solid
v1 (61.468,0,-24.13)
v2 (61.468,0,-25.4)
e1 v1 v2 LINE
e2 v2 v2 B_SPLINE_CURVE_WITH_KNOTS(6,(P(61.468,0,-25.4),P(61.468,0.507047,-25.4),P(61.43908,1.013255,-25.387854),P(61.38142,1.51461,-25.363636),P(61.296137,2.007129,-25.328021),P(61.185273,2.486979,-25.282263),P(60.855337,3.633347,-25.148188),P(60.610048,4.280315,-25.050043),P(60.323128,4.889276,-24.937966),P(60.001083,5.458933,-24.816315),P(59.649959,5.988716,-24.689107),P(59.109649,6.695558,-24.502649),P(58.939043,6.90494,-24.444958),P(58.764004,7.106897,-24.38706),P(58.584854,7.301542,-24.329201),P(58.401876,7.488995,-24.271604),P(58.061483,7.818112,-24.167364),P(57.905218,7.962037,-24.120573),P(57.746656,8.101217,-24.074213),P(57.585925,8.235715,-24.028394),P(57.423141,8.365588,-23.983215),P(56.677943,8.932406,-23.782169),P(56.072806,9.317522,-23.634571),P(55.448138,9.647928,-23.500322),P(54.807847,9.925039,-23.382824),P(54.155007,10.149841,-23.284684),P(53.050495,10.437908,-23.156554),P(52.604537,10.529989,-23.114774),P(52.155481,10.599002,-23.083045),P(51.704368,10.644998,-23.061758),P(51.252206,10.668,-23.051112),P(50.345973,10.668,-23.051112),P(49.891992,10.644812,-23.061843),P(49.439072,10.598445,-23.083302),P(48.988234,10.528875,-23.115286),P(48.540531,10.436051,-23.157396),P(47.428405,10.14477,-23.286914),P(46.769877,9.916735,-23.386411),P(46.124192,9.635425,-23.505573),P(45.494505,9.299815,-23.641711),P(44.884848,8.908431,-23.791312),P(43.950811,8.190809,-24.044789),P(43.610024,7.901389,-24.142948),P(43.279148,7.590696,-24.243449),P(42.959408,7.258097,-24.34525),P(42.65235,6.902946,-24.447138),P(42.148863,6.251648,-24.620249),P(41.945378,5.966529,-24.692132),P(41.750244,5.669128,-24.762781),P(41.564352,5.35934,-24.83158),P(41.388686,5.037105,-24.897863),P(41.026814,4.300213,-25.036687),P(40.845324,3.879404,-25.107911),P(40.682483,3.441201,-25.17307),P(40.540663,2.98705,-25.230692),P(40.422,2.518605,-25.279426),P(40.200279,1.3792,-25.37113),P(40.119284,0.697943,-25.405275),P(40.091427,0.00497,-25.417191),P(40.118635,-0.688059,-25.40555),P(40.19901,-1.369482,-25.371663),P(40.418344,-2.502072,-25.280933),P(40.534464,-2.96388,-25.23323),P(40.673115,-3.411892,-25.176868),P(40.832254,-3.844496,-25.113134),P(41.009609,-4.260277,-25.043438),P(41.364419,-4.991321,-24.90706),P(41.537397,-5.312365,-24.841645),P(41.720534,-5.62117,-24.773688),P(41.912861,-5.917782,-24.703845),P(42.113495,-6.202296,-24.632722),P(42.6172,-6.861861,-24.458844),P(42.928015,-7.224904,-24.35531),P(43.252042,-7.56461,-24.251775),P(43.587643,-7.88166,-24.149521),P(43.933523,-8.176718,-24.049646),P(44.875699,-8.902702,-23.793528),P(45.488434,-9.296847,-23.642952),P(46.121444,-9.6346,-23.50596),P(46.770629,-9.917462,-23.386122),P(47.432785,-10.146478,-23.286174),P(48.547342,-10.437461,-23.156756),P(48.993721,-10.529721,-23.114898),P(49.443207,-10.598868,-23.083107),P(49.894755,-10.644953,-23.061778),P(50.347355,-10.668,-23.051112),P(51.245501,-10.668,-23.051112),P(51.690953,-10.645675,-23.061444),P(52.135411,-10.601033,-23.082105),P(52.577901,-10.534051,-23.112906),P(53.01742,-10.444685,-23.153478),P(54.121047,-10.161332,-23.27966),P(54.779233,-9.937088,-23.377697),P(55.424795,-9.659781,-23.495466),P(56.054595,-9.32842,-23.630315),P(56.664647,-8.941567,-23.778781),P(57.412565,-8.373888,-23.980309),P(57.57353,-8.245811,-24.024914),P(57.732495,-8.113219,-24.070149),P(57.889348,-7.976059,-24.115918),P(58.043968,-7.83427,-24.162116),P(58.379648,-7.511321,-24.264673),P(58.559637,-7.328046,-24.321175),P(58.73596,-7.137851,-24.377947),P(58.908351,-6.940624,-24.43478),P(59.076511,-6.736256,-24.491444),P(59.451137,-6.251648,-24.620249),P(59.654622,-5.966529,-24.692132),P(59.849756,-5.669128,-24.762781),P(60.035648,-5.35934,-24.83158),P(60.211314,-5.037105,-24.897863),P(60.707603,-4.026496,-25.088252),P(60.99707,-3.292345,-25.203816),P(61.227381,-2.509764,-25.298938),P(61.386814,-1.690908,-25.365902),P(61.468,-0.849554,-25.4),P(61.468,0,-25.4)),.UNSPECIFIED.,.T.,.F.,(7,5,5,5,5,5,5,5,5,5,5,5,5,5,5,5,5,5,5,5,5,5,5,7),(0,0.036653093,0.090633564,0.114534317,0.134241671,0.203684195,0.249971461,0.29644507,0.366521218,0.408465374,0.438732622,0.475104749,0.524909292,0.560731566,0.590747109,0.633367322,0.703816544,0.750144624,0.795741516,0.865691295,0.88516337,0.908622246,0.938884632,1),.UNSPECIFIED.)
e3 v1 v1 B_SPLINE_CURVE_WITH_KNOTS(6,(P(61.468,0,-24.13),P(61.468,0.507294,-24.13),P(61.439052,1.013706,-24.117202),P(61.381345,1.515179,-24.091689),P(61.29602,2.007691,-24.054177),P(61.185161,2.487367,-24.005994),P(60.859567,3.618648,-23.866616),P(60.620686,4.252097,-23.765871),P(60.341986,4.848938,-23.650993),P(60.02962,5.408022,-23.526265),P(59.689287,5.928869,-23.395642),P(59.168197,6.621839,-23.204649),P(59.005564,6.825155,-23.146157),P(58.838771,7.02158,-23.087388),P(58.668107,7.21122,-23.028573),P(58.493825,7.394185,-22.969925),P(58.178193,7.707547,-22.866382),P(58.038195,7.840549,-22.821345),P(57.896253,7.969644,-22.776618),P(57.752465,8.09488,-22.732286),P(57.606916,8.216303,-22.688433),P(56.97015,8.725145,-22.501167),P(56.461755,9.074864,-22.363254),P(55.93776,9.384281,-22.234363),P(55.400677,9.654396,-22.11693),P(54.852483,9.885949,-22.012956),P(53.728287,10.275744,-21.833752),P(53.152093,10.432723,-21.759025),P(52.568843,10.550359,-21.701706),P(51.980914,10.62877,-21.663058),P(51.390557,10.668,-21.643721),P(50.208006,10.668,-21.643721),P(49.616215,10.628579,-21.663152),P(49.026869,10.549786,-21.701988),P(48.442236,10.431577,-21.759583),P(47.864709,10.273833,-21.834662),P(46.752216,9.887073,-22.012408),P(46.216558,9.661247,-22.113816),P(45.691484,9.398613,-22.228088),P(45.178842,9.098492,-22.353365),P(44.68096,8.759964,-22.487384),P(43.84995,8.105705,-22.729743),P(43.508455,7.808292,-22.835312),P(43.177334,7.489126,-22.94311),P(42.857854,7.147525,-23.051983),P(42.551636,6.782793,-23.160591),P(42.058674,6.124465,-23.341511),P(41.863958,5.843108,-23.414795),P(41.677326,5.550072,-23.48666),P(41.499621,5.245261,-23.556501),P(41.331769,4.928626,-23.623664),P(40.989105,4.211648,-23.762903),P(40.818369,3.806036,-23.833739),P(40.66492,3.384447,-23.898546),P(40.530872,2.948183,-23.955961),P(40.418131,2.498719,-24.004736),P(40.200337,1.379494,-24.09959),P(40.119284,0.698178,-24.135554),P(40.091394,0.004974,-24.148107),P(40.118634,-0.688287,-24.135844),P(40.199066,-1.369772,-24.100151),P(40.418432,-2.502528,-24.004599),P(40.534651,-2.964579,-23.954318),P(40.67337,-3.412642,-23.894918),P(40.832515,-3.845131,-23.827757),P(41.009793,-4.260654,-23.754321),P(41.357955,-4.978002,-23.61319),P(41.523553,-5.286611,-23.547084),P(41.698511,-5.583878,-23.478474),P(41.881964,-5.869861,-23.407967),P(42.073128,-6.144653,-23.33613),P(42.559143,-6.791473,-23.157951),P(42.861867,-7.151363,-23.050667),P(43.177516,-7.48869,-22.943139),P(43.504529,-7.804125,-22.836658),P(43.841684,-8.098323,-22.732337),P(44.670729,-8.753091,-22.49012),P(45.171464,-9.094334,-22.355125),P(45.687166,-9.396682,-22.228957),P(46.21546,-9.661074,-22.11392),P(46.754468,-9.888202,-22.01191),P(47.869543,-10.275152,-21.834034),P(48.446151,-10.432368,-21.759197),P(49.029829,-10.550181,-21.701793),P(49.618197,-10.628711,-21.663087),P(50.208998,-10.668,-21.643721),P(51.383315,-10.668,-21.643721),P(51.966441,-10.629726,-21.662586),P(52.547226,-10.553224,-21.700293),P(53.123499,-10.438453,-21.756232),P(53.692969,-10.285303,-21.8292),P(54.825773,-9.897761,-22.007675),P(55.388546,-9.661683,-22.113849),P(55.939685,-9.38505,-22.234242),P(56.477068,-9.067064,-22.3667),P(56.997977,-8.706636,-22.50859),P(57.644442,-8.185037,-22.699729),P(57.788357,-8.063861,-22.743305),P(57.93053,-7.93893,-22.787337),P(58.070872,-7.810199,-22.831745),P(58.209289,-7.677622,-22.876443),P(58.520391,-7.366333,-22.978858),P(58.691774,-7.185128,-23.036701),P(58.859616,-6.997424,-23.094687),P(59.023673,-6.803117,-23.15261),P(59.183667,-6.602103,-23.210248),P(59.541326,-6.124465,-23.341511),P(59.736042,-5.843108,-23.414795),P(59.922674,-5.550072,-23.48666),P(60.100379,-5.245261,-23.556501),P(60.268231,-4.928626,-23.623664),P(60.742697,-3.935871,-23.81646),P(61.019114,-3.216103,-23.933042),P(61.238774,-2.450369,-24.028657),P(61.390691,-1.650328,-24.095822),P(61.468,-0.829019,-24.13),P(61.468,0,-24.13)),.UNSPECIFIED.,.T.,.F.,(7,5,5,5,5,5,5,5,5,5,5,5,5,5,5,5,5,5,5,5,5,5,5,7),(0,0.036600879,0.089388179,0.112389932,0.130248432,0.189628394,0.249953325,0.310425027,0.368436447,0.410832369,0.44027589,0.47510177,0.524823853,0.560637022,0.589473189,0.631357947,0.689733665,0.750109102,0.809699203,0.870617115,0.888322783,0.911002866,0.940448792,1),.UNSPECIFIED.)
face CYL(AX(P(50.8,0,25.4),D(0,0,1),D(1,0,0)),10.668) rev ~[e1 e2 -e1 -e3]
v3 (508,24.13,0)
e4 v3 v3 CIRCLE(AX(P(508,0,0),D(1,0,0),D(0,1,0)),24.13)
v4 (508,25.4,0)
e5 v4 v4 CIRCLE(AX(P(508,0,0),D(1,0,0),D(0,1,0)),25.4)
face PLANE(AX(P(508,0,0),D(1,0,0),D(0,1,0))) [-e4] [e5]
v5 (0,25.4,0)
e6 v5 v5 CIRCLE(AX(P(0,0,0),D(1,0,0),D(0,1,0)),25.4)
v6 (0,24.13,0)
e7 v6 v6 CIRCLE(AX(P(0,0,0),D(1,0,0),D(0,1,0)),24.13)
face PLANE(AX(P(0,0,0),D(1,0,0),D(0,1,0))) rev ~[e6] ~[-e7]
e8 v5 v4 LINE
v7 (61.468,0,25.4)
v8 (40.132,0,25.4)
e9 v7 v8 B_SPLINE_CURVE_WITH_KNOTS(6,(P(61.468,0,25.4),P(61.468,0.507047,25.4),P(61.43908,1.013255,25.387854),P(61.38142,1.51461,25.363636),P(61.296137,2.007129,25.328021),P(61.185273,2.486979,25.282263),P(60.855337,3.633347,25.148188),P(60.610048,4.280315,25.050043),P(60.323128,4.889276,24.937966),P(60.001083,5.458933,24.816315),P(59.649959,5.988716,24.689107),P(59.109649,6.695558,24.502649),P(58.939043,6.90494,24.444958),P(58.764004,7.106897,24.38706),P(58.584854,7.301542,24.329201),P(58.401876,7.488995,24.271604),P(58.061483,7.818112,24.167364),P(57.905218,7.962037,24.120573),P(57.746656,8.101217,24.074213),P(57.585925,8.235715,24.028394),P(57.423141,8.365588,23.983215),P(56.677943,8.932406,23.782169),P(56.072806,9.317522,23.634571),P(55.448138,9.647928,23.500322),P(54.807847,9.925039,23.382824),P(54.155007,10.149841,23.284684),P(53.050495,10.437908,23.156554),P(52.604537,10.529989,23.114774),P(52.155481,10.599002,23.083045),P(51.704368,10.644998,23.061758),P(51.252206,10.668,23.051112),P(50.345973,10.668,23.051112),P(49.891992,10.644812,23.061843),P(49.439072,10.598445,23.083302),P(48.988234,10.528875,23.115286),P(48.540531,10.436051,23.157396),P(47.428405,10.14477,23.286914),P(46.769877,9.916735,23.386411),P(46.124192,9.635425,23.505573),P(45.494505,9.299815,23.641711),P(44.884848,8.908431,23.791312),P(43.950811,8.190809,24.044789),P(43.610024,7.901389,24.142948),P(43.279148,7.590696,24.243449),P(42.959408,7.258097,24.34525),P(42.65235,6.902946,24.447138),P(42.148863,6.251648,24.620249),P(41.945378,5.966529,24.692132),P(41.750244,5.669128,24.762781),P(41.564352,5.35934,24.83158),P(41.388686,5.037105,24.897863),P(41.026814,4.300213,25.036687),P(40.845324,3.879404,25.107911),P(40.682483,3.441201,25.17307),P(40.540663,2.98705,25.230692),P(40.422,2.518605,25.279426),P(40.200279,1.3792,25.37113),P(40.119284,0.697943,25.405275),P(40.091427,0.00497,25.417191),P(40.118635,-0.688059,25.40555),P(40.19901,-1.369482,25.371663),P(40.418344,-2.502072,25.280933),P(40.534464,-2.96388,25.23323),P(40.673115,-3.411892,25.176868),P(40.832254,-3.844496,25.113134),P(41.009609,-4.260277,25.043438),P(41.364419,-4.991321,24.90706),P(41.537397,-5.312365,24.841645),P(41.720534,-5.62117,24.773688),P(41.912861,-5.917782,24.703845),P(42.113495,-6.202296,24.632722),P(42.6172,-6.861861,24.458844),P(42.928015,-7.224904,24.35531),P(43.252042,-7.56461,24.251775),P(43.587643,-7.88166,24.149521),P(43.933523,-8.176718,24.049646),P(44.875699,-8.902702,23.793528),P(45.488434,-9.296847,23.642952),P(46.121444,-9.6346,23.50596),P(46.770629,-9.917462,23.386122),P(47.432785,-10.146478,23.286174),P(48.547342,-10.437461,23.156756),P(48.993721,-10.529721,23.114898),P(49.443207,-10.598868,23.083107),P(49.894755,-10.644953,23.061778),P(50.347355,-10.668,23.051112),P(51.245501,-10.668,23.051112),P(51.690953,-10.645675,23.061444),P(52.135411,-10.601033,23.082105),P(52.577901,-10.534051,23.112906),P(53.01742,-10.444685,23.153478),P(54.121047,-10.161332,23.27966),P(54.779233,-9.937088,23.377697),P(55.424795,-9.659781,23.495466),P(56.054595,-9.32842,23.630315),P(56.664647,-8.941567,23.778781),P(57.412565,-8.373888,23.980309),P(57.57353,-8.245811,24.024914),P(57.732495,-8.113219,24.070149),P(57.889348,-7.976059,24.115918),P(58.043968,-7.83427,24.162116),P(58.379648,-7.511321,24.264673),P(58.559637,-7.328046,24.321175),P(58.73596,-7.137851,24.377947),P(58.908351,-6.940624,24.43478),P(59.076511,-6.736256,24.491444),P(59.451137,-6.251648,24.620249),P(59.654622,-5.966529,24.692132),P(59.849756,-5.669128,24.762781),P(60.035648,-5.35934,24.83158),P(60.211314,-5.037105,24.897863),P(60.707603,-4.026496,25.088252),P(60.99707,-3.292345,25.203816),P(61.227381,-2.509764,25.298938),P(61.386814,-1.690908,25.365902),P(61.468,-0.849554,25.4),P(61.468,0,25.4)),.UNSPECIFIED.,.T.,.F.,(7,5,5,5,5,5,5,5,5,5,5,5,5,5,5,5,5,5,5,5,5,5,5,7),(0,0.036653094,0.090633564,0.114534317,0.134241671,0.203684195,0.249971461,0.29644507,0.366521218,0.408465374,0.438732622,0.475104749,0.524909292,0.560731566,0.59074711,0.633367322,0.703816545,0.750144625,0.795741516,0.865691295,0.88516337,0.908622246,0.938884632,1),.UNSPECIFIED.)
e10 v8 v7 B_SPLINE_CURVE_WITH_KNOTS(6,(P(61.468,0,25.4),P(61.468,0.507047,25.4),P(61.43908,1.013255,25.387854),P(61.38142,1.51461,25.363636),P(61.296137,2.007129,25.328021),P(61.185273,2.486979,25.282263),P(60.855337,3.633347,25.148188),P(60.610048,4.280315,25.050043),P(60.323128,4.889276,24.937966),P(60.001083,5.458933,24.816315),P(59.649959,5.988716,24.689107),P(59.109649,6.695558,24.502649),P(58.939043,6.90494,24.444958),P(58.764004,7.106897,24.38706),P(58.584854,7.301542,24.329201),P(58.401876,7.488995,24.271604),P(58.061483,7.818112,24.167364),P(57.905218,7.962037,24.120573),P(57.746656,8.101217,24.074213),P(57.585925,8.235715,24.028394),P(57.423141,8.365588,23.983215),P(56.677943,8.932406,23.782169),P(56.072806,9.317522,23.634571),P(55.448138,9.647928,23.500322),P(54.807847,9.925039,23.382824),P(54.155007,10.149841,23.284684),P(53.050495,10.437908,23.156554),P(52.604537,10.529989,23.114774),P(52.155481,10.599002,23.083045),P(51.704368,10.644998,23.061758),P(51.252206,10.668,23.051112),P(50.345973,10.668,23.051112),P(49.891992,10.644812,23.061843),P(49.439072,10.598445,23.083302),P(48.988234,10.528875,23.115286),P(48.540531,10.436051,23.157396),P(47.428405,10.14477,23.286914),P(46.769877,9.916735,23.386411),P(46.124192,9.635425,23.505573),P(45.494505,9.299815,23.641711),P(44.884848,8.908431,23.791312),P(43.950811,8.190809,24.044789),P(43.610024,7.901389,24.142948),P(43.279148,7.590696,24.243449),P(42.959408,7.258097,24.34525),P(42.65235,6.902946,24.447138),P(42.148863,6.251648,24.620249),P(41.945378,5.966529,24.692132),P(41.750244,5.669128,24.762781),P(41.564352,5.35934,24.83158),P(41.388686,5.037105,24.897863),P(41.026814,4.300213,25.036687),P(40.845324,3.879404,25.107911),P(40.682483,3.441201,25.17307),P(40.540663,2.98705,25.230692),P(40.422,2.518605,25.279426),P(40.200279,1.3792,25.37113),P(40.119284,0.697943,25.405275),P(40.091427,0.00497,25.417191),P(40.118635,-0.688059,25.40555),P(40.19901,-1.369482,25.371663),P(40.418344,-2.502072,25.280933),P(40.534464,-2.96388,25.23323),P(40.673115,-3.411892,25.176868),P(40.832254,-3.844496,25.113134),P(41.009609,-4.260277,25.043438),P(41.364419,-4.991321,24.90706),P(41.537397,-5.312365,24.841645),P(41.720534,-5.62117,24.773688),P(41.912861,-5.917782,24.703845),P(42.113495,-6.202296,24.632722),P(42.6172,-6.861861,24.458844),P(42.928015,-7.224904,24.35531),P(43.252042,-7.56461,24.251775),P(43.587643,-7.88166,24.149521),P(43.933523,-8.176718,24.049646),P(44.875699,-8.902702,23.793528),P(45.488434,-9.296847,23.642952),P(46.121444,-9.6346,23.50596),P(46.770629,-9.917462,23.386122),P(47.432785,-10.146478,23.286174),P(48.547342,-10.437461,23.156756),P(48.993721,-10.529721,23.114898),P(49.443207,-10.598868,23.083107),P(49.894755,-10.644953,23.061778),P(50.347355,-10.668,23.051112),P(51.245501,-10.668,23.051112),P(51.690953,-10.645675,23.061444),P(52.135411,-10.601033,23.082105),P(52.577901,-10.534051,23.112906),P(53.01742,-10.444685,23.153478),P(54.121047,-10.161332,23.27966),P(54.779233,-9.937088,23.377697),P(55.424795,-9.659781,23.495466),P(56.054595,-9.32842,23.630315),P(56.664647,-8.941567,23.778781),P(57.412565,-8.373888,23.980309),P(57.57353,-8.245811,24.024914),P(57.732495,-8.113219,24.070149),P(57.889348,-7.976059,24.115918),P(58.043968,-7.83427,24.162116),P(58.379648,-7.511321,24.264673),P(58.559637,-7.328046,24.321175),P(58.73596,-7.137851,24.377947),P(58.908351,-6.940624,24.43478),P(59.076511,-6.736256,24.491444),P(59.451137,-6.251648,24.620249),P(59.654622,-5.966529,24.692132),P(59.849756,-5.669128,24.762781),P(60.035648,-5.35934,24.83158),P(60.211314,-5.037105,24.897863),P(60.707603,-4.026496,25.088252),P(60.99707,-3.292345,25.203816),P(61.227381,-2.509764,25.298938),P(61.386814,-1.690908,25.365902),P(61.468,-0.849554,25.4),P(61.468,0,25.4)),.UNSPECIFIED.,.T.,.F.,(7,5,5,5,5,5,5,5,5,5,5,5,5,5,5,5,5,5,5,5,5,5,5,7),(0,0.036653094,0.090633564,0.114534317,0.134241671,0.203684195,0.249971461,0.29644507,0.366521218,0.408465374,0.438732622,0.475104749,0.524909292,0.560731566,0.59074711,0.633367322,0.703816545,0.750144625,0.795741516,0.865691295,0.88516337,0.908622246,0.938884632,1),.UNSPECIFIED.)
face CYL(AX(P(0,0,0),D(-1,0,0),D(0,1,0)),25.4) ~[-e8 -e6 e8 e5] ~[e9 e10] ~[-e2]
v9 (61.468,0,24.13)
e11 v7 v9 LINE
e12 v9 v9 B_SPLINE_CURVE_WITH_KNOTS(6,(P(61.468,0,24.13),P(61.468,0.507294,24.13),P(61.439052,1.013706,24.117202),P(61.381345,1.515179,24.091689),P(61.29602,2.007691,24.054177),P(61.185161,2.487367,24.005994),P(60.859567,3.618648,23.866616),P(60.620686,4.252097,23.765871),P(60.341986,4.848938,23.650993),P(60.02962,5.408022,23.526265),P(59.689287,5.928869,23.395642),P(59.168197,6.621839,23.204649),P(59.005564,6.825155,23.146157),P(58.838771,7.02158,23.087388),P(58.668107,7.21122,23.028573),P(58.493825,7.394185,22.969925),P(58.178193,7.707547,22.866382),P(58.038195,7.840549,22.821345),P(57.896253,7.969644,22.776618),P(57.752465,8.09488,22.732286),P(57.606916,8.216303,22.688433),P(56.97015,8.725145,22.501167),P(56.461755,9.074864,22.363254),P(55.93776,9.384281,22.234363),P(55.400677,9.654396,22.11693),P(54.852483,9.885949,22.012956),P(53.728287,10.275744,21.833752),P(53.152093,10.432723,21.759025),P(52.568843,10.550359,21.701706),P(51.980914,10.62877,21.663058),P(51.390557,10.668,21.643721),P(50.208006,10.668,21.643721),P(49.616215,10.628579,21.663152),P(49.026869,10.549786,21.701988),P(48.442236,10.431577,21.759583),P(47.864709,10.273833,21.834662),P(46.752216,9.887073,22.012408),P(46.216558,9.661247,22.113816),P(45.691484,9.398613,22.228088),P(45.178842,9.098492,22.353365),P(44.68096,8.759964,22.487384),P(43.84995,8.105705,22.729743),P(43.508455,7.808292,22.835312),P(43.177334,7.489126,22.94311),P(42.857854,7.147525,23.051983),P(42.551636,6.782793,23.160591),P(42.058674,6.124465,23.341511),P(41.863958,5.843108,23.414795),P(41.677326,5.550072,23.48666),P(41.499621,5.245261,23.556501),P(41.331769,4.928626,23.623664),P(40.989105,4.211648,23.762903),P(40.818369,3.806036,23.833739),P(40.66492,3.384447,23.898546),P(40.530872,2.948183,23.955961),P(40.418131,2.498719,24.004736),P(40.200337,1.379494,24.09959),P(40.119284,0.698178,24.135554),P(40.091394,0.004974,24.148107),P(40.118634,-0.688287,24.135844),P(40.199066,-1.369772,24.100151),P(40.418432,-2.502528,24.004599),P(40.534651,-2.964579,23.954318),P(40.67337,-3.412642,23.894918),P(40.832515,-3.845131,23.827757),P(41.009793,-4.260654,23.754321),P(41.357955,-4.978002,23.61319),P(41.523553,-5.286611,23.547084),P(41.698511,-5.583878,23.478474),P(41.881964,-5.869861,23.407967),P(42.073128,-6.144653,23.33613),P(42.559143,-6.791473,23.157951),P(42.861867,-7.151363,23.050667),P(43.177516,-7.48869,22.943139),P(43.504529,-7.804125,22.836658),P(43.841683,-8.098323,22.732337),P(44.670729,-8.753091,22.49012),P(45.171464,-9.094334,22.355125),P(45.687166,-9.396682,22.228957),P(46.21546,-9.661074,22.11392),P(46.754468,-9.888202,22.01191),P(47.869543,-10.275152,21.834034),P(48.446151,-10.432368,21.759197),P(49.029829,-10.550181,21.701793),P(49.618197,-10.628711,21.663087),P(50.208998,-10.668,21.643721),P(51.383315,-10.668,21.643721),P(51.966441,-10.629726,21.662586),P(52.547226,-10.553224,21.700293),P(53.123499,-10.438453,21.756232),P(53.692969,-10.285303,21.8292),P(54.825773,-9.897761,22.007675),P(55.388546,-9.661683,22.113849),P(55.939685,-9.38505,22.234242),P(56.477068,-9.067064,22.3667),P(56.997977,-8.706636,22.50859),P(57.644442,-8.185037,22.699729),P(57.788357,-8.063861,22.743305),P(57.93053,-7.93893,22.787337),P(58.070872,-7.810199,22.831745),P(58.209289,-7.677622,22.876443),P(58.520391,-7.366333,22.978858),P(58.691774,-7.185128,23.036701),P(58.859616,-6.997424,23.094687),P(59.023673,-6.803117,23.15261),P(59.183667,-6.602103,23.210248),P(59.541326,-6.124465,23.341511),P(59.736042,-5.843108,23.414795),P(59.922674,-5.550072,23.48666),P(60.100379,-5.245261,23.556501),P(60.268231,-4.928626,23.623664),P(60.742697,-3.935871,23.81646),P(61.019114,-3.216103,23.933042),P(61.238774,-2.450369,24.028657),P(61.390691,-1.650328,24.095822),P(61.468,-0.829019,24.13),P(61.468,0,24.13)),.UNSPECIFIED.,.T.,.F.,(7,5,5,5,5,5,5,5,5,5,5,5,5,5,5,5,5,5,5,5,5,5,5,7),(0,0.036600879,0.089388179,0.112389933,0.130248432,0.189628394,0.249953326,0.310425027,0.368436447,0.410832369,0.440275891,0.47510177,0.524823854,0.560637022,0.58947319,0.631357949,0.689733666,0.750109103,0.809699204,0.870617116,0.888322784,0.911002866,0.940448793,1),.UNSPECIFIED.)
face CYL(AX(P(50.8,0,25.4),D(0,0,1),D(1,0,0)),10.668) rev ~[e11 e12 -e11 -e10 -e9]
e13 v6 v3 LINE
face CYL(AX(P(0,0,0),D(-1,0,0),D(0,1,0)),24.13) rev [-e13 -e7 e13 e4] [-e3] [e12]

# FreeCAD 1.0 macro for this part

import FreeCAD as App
import Part
import Sketcher
Q = App.Units.Quantity

doc = App.newDocument("Part")
params = doc.addObject("Spreadsheet::Sheet", "Params")
for row, (alias, value) in enumerate([
    ("sketch1_diameter", "2 in"),
    ("sketch1_diameter2", "1.9 in"),
    ("pad1_length", "20 in"),
    ("sketch2_diameter", "0.84 in"),
], start=1):
    params.set(f"A{row}", alias)
    params.set(f"B{row}", "=" + value)
    params.setAlias(f"B{row}", alias)

body = doc.addObject("PartDesign::Body", "Body")

# Sketch on YZ plane
sketch1 = body.newObject("Sketcher::SketchObject", "Sketch")
sketch1.AttachmentSupport = (doc.getObject("YZ_Plane"), [""])
sketch1.MapMode = "FlatFace"
sketch1.addGeometry([
    Part.Circle(App.Vector(0, 0, 0), App.Vector(0, 0, 1), 25),
    Part.Circle(App.Vector(0, 0, 0), App.Vector(0, 0, 1), 24),
], False)
sketch1.addConstraint([
    Sketcher.Constraint("Coincident", 0, 3, -1, 1),
    Sketcher.Constraint("Coincident", 1, 3, -1, 1),
    Sketcher.Constraint("Diameter", 0, Q("2 in")),
    Sketcher.Constraint("Diameter", 1, Q("1.9 in")),
])
sketch1.setExpression("Constraints[2]", "Params.sketch1_diameter")
sketch1.setExpression("Constraints[3]", "Params.sketch1_diameter2")
pad1 = body.newObject("PartDesign::Pad", "Pad")
pad1.Profile = sketch1
pad1.setExpression("Length", "Params.pad1_length")

# Sketch on XY plane
sketch2 = body.newObject("Sketcher::SketchObject", "Sketch001")
sketch2.AttachmentSupport = (doc.getObject("XY_Plane"), [""])
sketch2.MapMode = "FlatFace"
sketch2.AttachmentOffset = App.Placement(App.Vector(0, 0, 1 * 25.4), App.Rotation())
sketch2.addGeometry(Part.Circle(App.Vector(51, 0, 0), App.Vector(0, 0, 1), 11), False)
sketch2.addConstraint([
    Sketcher.Constraint("PointOnObject", 0, 3, -1),
    Sketcher.Constraint("Diameter", 0, Q("0.84 in")),
    Sketcher.Constraint("DistanceX", -1, 1, 0, 3, Q("2 in")),
])
sketch2.setExpression("Constraints[1]", "Params.sketch2_diameter")
pocket1 = body.newObject("PartDesign::Pocket", "Pocket")
pocket1.Profile = sketch2
pocket1.Type = "ThroughAll"

doc.recompute()
